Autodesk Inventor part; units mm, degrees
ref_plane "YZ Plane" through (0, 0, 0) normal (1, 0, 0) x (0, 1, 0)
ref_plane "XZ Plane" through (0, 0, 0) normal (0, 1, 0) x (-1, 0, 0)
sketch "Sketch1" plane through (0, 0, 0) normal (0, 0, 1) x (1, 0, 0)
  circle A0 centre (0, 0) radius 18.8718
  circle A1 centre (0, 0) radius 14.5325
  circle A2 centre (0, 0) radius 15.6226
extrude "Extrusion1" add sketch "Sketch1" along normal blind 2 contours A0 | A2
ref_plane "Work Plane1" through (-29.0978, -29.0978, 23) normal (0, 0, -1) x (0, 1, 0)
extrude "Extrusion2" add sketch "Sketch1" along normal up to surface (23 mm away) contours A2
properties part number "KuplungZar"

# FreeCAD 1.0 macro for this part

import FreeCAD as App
import Part
import Sketcher

doc = App.newDocument("Part")
body = doc.addObject("PartDesign::Body", "Body")

sketch1 = body.newObject("Sketcher::SketchObject", "Sketch")
sketch1.AttachmentSupport = (doc.getObject("XY_Plane"), [""])
sketch1.MapMode = "FlatFace"
sketch1.addGeometry(Part.Circle(App.Vector(0, 0, 0), App.Vector(0, 0, 1), 19), False)
sketch1.addGeometry(Part.Circle(App.Vector(0, 0, 0), App.Vector(0, 0, 1), 15), False)
sketch1.addConstraint(Sketcher.Constraint("Coincident", 0, 3, -1, 1))
sketch1.addConstraint(Sketcher.Constraint("Coincident", 1, 3, -1, 1))
sketch1.addConstraint(Sketcher.Constraint("Diameter", 1, 29.065))
sketch1.addConstraint(Sketcher.Constraint("Diameter", 0, 37.7436))
pad1 = body.newObject("PartDesign::Pad", "Pad")
pad1.Profile = sketch1
pad1.Length = 2

sketch2 = body.newObject("Sketcher::SketchObject", "Sketch001")
sketch2.AttachmentSupport = (doc.getObject("XY_Plane"), [""])
sketch2.MapMode = "FlatFace"
sketch2.addGeometry(Part.Circle(App.Vector(0, 0, 0), App.Vector(0, 0, 1), 16), False)
sketch2.addGeometry(Part.Circle(App.Vector(0, 0, 0), App.Vector(0, 0, 1), 15), False)
sketch2.addConstraint(Sketcher.Constraint("Coincident", 0, 3, -1, 1))
sketch2.addConstraint(Sketcher.Constraint("Coincident", 1, 3, -1, 1))
sketch2.addConstraint(Sketcher.Constraint("Diameter", 1, 29.065))
sketch2.addConstraint(Sketcher.Constraint("Diameter", 0, 31.2452))
pad2 = body.newObject("PartDesign::Pad", "Pad001")
pad2.Profile = sketch2
pad2.Length = 23

doc.recompute()
